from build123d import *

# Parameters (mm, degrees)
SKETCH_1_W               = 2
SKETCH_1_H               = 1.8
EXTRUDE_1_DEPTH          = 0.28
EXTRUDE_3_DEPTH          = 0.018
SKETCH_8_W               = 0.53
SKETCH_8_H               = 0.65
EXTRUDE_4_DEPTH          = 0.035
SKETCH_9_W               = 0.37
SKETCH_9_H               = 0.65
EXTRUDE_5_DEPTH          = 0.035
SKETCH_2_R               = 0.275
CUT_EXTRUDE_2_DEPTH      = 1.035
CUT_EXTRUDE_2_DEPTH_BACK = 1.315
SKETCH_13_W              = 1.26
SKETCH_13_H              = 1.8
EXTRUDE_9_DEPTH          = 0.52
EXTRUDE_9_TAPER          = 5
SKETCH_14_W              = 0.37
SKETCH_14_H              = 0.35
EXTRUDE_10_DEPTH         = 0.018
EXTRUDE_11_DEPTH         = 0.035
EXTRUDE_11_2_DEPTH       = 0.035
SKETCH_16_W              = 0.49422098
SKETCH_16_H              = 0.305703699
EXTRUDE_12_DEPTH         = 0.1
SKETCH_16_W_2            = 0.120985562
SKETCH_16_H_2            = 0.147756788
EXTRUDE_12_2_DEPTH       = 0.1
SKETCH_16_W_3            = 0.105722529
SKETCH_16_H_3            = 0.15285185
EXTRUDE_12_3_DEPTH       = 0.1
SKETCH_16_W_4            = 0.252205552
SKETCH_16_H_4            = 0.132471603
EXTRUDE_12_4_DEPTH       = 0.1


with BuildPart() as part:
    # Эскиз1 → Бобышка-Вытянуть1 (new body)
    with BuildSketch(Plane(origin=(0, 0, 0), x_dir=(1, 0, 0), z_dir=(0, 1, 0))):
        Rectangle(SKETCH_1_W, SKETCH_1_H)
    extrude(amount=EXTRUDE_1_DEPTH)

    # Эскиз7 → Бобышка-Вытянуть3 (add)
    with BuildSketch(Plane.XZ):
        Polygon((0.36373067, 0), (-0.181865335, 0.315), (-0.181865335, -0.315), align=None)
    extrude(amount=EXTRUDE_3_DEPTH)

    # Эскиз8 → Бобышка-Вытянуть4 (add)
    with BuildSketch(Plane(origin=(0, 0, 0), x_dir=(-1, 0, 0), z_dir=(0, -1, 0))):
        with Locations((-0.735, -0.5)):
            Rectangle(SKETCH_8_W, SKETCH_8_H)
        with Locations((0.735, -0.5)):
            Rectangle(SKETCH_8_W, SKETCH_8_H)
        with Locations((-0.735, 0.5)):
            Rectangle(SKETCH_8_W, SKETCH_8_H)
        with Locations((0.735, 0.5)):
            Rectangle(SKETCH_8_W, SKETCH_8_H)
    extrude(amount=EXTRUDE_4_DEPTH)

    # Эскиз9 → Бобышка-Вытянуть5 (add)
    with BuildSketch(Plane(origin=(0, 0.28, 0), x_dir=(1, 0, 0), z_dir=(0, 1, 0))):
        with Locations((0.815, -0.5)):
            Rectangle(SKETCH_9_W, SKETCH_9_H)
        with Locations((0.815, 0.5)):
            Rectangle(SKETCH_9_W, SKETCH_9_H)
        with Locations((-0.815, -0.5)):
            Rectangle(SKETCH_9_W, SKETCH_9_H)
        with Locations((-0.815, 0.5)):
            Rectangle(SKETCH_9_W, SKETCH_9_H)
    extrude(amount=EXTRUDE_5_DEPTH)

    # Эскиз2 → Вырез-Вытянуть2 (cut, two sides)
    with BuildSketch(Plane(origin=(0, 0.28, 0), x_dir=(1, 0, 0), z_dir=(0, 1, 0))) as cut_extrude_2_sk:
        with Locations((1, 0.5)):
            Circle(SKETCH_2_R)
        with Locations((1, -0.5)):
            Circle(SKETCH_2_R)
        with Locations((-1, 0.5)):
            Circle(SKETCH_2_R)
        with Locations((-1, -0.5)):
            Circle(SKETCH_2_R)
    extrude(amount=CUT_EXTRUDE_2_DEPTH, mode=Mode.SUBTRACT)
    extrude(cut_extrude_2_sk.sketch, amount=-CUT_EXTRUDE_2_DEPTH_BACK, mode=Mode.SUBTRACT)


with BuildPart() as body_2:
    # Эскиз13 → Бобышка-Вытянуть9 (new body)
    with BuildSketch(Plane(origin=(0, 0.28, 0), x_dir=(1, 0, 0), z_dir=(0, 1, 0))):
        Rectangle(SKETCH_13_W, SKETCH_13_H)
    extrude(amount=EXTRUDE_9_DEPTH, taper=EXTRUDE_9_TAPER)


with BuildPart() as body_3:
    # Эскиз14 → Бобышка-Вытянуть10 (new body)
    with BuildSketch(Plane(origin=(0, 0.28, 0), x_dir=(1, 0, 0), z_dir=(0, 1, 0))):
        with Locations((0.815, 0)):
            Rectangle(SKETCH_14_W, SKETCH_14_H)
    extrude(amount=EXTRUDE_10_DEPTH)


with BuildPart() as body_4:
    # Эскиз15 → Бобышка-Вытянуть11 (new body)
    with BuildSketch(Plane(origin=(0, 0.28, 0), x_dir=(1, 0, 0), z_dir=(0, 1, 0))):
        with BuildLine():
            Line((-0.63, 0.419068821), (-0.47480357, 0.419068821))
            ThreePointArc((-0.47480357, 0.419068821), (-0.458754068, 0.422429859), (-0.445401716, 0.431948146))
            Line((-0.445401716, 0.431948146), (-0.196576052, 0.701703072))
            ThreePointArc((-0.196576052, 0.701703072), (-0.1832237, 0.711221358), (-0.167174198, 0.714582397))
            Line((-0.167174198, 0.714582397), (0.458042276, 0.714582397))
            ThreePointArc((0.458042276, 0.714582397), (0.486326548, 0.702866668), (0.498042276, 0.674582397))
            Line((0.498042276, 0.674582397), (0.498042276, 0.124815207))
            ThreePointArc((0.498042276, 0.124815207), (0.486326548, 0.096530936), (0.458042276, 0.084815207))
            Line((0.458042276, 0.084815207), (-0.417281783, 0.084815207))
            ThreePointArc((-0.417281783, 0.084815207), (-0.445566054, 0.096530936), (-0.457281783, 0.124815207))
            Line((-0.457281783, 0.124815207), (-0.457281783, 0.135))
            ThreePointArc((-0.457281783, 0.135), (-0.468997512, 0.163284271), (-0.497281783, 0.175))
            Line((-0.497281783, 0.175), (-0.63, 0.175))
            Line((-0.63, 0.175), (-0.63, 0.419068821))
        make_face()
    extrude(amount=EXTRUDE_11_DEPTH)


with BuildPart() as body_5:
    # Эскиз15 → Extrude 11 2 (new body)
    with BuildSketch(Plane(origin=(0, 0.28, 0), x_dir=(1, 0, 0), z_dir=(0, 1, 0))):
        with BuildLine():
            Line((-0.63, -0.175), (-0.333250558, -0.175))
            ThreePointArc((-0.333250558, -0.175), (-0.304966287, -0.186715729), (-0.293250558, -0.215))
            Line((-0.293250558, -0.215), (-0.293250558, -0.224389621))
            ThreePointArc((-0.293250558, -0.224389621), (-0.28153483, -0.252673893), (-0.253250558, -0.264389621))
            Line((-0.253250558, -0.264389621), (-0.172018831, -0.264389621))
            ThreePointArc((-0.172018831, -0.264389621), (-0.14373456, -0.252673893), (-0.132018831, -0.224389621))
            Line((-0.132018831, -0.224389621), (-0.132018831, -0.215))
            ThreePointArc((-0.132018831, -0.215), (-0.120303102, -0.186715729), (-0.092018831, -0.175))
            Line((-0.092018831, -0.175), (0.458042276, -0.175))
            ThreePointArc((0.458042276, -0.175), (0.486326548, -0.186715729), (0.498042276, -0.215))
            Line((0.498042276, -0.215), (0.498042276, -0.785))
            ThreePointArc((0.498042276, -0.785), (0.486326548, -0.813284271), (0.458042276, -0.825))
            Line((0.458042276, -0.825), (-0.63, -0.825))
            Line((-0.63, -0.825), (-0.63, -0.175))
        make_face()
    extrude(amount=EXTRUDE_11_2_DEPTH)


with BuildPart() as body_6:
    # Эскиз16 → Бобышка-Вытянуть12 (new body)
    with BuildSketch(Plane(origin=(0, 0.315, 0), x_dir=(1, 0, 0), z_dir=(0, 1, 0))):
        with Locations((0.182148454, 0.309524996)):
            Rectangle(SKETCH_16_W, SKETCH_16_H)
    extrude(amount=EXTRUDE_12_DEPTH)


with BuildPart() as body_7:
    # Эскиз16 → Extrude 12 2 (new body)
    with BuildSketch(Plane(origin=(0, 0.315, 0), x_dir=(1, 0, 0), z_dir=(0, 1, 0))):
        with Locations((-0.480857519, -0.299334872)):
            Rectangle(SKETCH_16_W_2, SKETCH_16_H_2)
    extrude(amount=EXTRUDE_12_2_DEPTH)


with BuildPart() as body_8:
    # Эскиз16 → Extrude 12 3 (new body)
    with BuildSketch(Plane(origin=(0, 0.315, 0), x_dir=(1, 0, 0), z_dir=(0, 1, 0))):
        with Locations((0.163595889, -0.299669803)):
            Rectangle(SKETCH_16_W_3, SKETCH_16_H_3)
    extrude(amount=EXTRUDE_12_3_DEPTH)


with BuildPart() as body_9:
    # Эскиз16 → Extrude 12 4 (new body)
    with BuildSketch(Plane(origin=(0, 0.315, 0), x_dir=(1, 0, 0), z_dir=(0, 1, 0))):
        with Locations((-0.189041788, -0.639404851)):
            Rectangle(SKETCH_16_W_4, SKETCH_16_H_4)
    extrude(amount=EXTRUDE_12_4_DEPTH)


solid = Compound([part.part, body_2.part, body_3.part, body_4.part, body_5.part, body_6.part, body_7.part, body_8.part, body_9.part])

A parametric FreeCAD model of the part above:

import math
import FreeCAD as App
import Part
import Sketcher
from FreeCAD import Vector
Q = App.Units.Quantity


def add_polygon(sketch, points):
    """Adds a closed chain of lines whose ends are joined by coincident constraints."""
    first, n = sketch.GeometryCount, len(points)
    for a, b in zip(points, points[1:] + points[:1]):
        sketch.addGeometry(Part.LineSegment(App.Vector(*a, 0), App.Vector(*b, 0)), False)
    for i in range(n):
        sketch.addConstraint(Sketcher.Constraint("Coincident", first + i, 2, first + (i + 1) % n, 1))

doc = App.newDocument("Part")
params = doc.addObject("Spreadsheet::Sheet", "Params")
for row, (alias, value) in enumerate([
    ("sketch1_width", "2 mm"),
    ("sketch1_height", "1.8 mm"),
    ("pad1_length", "0.28 mm"),
    ("sketch2_height", "0.63 mm"),
    ("pad2_length", "0.018 mm"),
    ("sketch3_width", "0.53 mm"),
    ("sketch3_height", "0.65 mm"),
    ("pad3_length", "0.035 mm"),
    ("sketch4_width", "0.37 mm"),
    ("sketch4_height", "0.65 mm"),
    ("pad4_length", "0.035 mm"),
    ("sketch5_diameter", "0.55 mm"),
    ("sketch6_height", "1.8 mm"),
    ("sketch6_width", "1.26 mm"),
    ("pad5_length", "0.52 mm"),
    ("pad5_taper", "-5 deg"),
    ("sketch7_width", "0.37 mm"),
    ("sketch7_height", "0.35 mm"),
    ("pad6_length", "0.018 mm"),
    ("sketch8_radius", "0.04 mm"),
    ("pad7_length", "0.035 mm"),
    ("sketch9_radius", "0.04 mm"),
    ("sketch9_height", "0.65 mm"),
    ("pad8_length", "0.035 mm"),
    ("pad9_length", "0.1 mm"),
    ("pad10_length", "0.1 mm"),
    ("pad11_length", "0.1 mm"),
    ("pad12_length", "0.1 mm"),
], start=1):
    params.set(f"A{row}", alias)
    params.set(f"B{row}", "=" + value)
    params.setAlias(f"B{row}", alias)

body = doc.addObject("PartDesign::Body", "Body")

# Sketch on XZ plane
sketch1 = body.newObject("Sketcher::SketchObject", "Sketch")
sketch1.AttachmentSupport = (doc.getObject("XZ_Plane"), [""])
sketch1.MapMode = "FlatFace"
add_polygon(sketch1, [(-1, -0.9), (-1, 0.9), (1, 0.9), (1, -0.9)])  # lines 0-3
sketch1.addConstraint(Sketcher.Constraint("Vertical", 0))
sketch1.addConstraint(Sketcher.Constraint("Horizontal", 1))
sketch1.addConstraint(Sketcher.Constraint("Vertical", 2))
sketch1.addConstraint(Sketcher.Constraint("Horizontal", 3))
sketch1.addConstraint(Sketcher.Constraint("Symmetric", 0, 2, 2, 2, -1, 1))
sketch1.addConstraint(Sketcher.Constraint("DistanceX", 1, 1, 1, 2, Q("2 mm")))
sketch1.addConstraint(Sketcher.Constraint("DistanceY", 0, 1, 0, 2, Q("1.8 mm")))
sketch1.setExpression("Constraints[9]", "Params.sketch1_width")
sketch1.setExpression("Constraints[10]", "Params.sketch1_height")
pad1 = body.newObject("PartDesign::Pad", "Pad")
pad1.Profile = sketch1
pad1.setExpression("Length", "Params.pad1_length")
pad1.Reversed = True

# Sketch on XZ plane
sketch2 = body.newObject("Sketcher::SketchObject", "Sketch001")
sketch2.AttachmentSupport = (doc.getObject("XZ_Plane"), [""])
sketch2.MapMode = "FlatFace"
add_polygon(sketch2, [(0.363731, 0), (-0.181865, 0.315), (-0.181865, -0.315)])  # lines 0-2
sketch2.addConstraint(Sketcher.Constraint("Vertical", 1))
sketch2.addConstraint(Sketcher.Constraint("PointOnObject", 2, 2, -1))
sketch2.addConstraint(Sketcher.Constraint("Equal", 0, 2))
sketch2.addConstraint(Sketcher.Constraint("Angle", 0, Q("150 deg")))
sketch2.addConstraint(Sketcher.Constraint("DistanceY", 1, 2, 1, 1, Q("0.63 mm")))
sketch2.addConstraint(Sketcher.Constraint("DistanceX", -1, 1, 2, 2, Q("0.363731 mm")))
sketch2.setExpression("Constraints[7]", "Params.sketch2_height")
pad2 = body.newObject("PartDesign::Pad", "Pad001")
pad2.Profile = sketch2
pad2.setExpression("Length", "Params.pad2_length")

# Sketch on XZ plane
sketch3 = body.newObject("Sketcher::SketchObject", "Sketch002")
sketch3.AttachmentSupport = (doc.getObject("XZ_Plane"), [""])
sketch3.MapMode = "FlatFace"
add_polygon(sketch3, [(1, 0.175), (1, 0.825), (0.47, 0.825), (0.47, 0.175)])  # lines 0-3
add_polygon(sketch3, [(-0.47, 0.175), (-0.47, 0.825), (-1, 0.825), (-1, 0.175)])  # lines 4-7
add_polygon(sketch3, [(1, -0.825), (1, -0.175), (0.47, -0.175), (0.47, -0.825)])  # lines 8-11
add_polygon(sketch3, [(-0.47, -0.825), (-0.47, -0.175), (-1, -0.175), (-1, -0.825)])  # lines 12-15
sketch3.addConstraint(Sketcher.Constraint("Vertical", 0))
sketch3.addConstraint(Sketcher.Constraint("Horizontal", 1))
sketch3.addConstraint(Sketcher.Constraint("Vertical", 2))
sketch3.addConstraint(Sketcher.Constraint("Horizontal", 3))
sketch3.addConstraint(Sketcher.Constraint("Vertical", 4))
sketch3.addConstraint(Sketcher.Constraint("Horizontal", 5))
sketch3.addConstraint(Sketcher.Constraint("Vertical", 6))
sketch3.addConstraint(Sketcher.Constraint("Horizontal", 7))
sketch3.addConstraint(Sketcher.Constraint("Vertical", 8))
sketch3.addConstraint(Sketcher.Constraint("Horizontal", 9))
sketch3.addConstraint(Sketcher.Constraint("Vertical", 10))
sketch3.addConstraint(Sketcher.Constraint("Horizontal", 11))
sketch3.addConstraint(Sketcher.Constraint("Vertical", 12))
sketch3.addConstraint(Sketcher.Constraint("Horizontal", 13))
sketch3.addConstraint(Sketcher.Constraint("Vertical", 14))
sketch3.addConstraint(Sketcher.Constraint("Horizontal", 15))
sketch3.addConstraint(Sketcher.Constraint("Symmetric", 6, 2, 8, 2, -1, 1))
sketch3.addConstraint(Sketcher.Constraint("Symmetric", 4, 2, 10, 2, -1, 1))
sketch3.addConstraint(Sketcher.Constraint("Symmetric", 2, 2, 12, 2, -1, 1))
sketch3.addConstraint(Sketcher.Constraint("Symmetric", 0, 2, 14, 2, -1, 1))
sketch3.addConstraint(Sketcher.Constraint("Symmetric", 1, 2, 4, 2, -2))
sketch3.addConstraint(Sketcher.Constraint("Symmetric", 3, 2, 6, 2, -2))
sketch3.addConstraint(Sketcher.Constraint("DistanceX", -1, 1, 0, 2, Q("1 mm")))
sketch3.addConstraint(Sketcher.Constraint("DistanceY", 8, 2, 0, 2, Q("1 mm")))
sketch3.addConstraint(Sketcher.Constraint("DistanceX", 1, 2, 1, 1, Q("0.53 mm")))
sketch3.addConstraint(Sketcher.Constraint("DistanceY", 0, 1, 0, 2, Q("0.65 mm")))
sketch3.setExpression("Constraints[40]", "Params.sketch3_width")
sketch3.setExpression("Constraints[41]", "Params.sketch3_height")
pad3 = body.newObject("PartDesign::Pad", "Pad002")
pad3.Profile = sketch3
pad3.setExpression("Length", "Params.pad3_length")

# Sketch on XZ plane
sketch4 = body.newObject("Sketcher::SketchObject", "Sketch003")
sketch4.AttachmentSupport = (doc.getObject("XZ_Plane"), [""])
sketch4.MapMode = "FlatFace"
sketch4.AttachmentOffset = App.Placement(Vector(0, 0, -0.28), App.Rotation())
add_polygon(sketch4, [(0.63, 0.175), (0.63, 0.825), (1, 0.825), (1, 0.175)])  # lines 0-3
add_polygon(sketch4, [(0.63, -0.825), (0.63, -0.175), (1, -0.175), (1, -0.825)])  # lines 4-7
add_polygon(sketch4, [(-1, 0.175), (-1, 0.825), (-0.63, 0.825), (-0.63, 0.175)])  # lines 8-11
add_polygon(sketch4, [(-1, -0.825), (-1, -0.175), (-0.63, -0.175), (-0.63, -0.825)])  # lines 12-15
sketch4.addConstraint(Sketcher.Constraint("Vertical", 0))
sketch4.addConstraint(Sketcher.Constraint("Horizontal", 1))
sketch4.addConstraint(Sketcher.Constraint("Vertical", 2))
sketch4.addConstraint(Sketcher.Constraint("Horizontal", 3))
sketch4.addConstraint(Sketcher.Constraint("Vertical", 4))
sketch4.addConstraint(Sketcher.Constraint("Horizontal", 5))
sketch4.addConstraint(Sketcher.Constraint("Vertical", 6))
sketch4.addConstraint(Sketcher.Constraint("Horizontal", 7))
sketch4.addConstraint(Sketcher.Constraint("Vertical", 8))
sketch4.addConstraint(Sketcher.Constraint("Horizontal", 9))
sketch4.addConstraint(Sketcher.Constraint("Vertical", 10))
sketch4.addConstraint(Sketcher.Constraint("Horizontal", 11))
sketch4.addConstraint(Sketcher.Constraint("Vertical", 12))
sketch4.addConstraint(Sketcher.Constraint("Horizontal", 13))
sketch4.addConstraint(Sketcher.Constraint("Vertical", 14))
sketch4.addConstraint(Sketcher.Constraint("Horizontal", 15))
sketch4.addConstraint(Sketcher.Constraint("Symmetric", 6, 2, 8, 2, -1, 1))
sketch4.addConstraint(Sketcher.Constraint("Symmetric", 4, 2, 10, 2, -1, 1))
sketch4.addConstraint(Sketcher.Constraint("Symmetric", 2, 2, 12, 2, -1, 1))
sketch4.addConstraint(Sketcher.Constraint("Symmetric", 0, 2, 14, 2, -1, 1))
sketch4.addConstraint(Sketcher.Constraint("Symmetric", 1, 2, 8, 2, -2))
sketch4.addConstraint(Sketcher.Constraint("Symmetric", 3, 2, 10, 2, -2))
sketch4.addConstraint(Sketcher.Constraint("DistanceX", -1, 1, 1, 2, Q("1 mm")))
sketch4.addConstraint(Sketcher.Constraint("DistanceY", 4, 2, 0, 2, Q("1 mm")))
sketch4.addConstraint(Sketcher.Constraint("DistanceX", 1, 1, 1, 2, Q("0.37 mm")))
sketch4.addConstraint(Sketcher.Constraint("DistanceY", 0, 1, 0, 2, Q("0.65 mm")))
sketch4.setExpression("Constraints[40]", "Params.sketch4_width")
sketch4.setExpression("Constraints[41]", "Params.sketch4_height")
pad4 = body.newObject("PartDesign::Pad", "Pad003")
pad4.Profile = sketch4
pad4.setExpression("Length", "Params.pad4_length")
pad4.Reversed = True

# Sketch on XZ plane
sketch5 = body.newObject("Sketcher::SketchObject", "Sketch004")
sketch5.AttachmentSupport = (doc.getObject("XZ_Plane"), [""])
sketch5.MapMode = "FlatFace"
sketch5.AttachmentOffset = App.Placement(Vector(0, 0, -0.28), App.Rotation())
sketch5.addGeometry(Part.Circle(Vector(1, -0.5, 0), Vector(0, 0, 1), 0.275), False)
sketch5.addGeometry(Part.Circle(Vector(1, 0.5, 0), Vector(0, 0, 1), 0.275), False)
sketch5.addGeometry(Part.Circle(Vector(-1, -0.5, 0), Vector(0, 0, 1), 0.275), False)
sketch5.addGeometry(Part.Circle(Vector(-1, 0.5, 0), Vector(0, 0, 1), 0.275), False)
sketch5.addConstraint(Sketcher.Constraint("Equal", 0, 1))
sketch5.addConstraint(Sketcher.Constraint("Equal", 1, 2))
sketch5.addConstraint(Sketcher.Constraint("Equal", 2, 3))
sketch5.addConstraint(Sketcher.Constraint("Symmetric", 1, 3, 2, 3, -1, 1))
sketch5.addConstraint(Sketcher.Constraint("Symmetric", 0, 3, 3, 3, -1, 1))
sketch5.addConstraint(Sketcher.Constraint("Symmetric", 0, 3, 2, 3, -2))
sketch5.addConstraint(Sketcher.Constraint("Diameter", 0, Q("0.55 mm")))
sketch5.addConstraint(Sketcher.Constraint("DistanceX", -1, 1, 0, 3, Q("1 mm")))
sketch5.addConstraint(Sketcher.Constraint("DistanceY", 0, 3, 1, 3, Q("1 mm")))
sketch5.setExpression("Constraints[6]", "Params.sketch5_diameter")
pocket1 = body.newObject("PartDesign::Pocket", "Pocket")
pocket1.Profile = sketch5
pocket1.Type = "ThroughAll"
pocket1.Midplane = True
body2 = doc.addObject("PartDesign::Body", "Body001")

# Sketch on XZ plane
sketch6 = body2.newObject("Sketcher::SketchObject", "Sketch005")
sketch6.AttachmentSupport = (doc.getObject("XZ_Plane001"), [""])
sketch6.MapMode = "FlatFace"
sketch6.AttachmentOffset = App.Placement(Vector(0, 0, -0.28), App.Rotation())
add_polygon(sketch6, [(-0.63, -0.9), (-0.63, 0.9), (0.63, 0.9), (0.63, -0.9)])  # lines 0-3
sketch6.addConstraint(Sketcher.Constraint("Vertical", 0))
sketch6.addConstraint(Sketcher.Constraint("Horizontal", 1))
sketch6.addConstraint(Sketcher.Constraint("Vertical", 2))
sketch6.addConstraint(Sketcher.Constraint("Horizontal", 3))
sketch6.addConstraint(Sketcher.Constraint("Symmetric", 0, 2, 2, 2, -1, 1))
sketch6.addConstraint(Sketcher.Constraint("DistanceY", 0, 1, 0, 2, Q("1.8 mm")))
sketch6.addConstraint(Sketcher.Constraint("DistanceX", 1, 1, 1, 2, Q("1.26 mm")))
sketch6.setExpression("Constraints[9]", "Params.sketch6_height")
sketch6.setExpression("Constraints[10]", "Params.sketch6_width")
pad5 = body2.newObject("PartDesign::Pad", "Pad004")
pad5.Profile = sketch6
pad5.setExpression("Length", "Params.pad5_length")
pad5.Reversed = True
pad5.setExpression("TaperAngle", "Params.pad5_taper")
body3 = doc.addObject("PartDesign::Body", "Body002")

# Sketch on XZ plane
sketch7 = body3.newObject("Sketcher::SketchObject", "Sketch006")
sketch7.AttachmentSupport = (doc.getObject("XZ_Plane002"), [""])
sketch7.MapMode = "FlatFace"
sketch7.AttachmentOffset = App.Placement(Vector(0, 0, -0.28), App.Rotation())
add_polygon(sketch7, [(0.63, -0.175), (0.63, 0.175), (1, 0.175), (1, -0.175)])  # lines 0-3
sketch7.addConstraint(Sketcher.Constraint("Vertical", 0))
sketch7.addConstraint(Sketcher.Constraint("Horizontal", 1))
sketch7.addConstraint(Sketcher.Constraint("Vertical", 2))
sketch7.addConstraint(Sketcher.Constraint("Horizontal", 3))
sketch7.addConstraint(Sketcher.Constraint("DistanceX", -1, 1, 1, 2, Q("1 mm")))
sketch7.addConstraint(Sketcher.Constraint("DistanceX", 1, 1, 1, 2, Q("0.37 mm")))
sketch7.addConstraint(Sketcher.Constraint("DistanceY", 0, 1, 0, 2, Q("0.35 mm")))
sketch7.addConstraint(Sketcher.Constraint("DistanceY", -1, 1, 0, 2, Q("0.175 mm")))
sketch7.setExpression("Constraints[9]", "Params.sketch7_width")
sketch7.setExpression("Constraints[10]", "Params.sketch7_height")
pad6 = body3.newObject("PartDesign::Pad", "Pad005")
pad6.Profile = sketch7
pad6.setExpression("Length", "Params.pad6_length")
pad6.Reversed = True
body4 = doc.addObject("PartDesign::Body", "Body003")

# Sketch on XZ plane
sketch8 = body4.newObject("Sketcher::SketchObject", "Sketch007")
sketch8.AttachmentSupport = (doc.getObject("XZ_Plane003"), [""])
sketch8.MapMode = "FlatFace"
sketch8.AttachmentOffset = App.Placement(Vector(0, 0, -0.28), App.Rotation())
sketch8.addGeometry(Part.LineSegment(Vector(-0.474804, -0.419069, 0), Vector(-0.63, -0.419069, 0)), False)
sketch8.addGeometry(Part.LineSegment(Vector(-0.63, -0.419069, 0), Vector(-0.63, -0.175, 0)), False)
sketch8.addGeometry(Part.LineSegment(Vector(-0.63, -0.175, 0), Vector(-0.497282, -0.175, 0)), False)
sketch8.addGeometry(Part.ArcOfCircle(Part.Circle(Vector(-0.497282, -0.135, 0), Vector(0, 0, 1), 0.04), math.radians(-89.999999), math.radians(-0.000001)), False)
sketch8.addGeometry(Part.LineSegment(Vector(-0.457282, -0.135, 0), Vector(-0.457282, -0.124815, 0)), False)
sketch8.addGeometry(Part.ArcOfCircle(Part.Circle(Vector(-0.417282, -0.124815, 0), Vector(0, 0, 1), 0.04), math.radians(90.000001), math.radians(179.999999)), False)
sketch8.addGeometry(Part.LineSegment(Vector(-0.417282, -0.084815, 0), Vector(0.458042, -0.084815, 0)), False)
sketch8.addGeometry(Part.ArcOfCircle(Part.Circle(Vector(0.458042, -0.124815, 0), Vector(0, 0, 1), 0.04), math.radians(-0.000001), math.radians(90.000001)), False)
sketch8.addGeometry(Part.LineSegment(Vector(0.498042, -0.124815, 0), Vector(0.498042, -0.674582, 0)), False)
sketch8.addGeometry(Part.ArcOfCircle(Part.Circle(Vector(0.458042, -0.674582, 0), Vector(0, 0, 1), 0.04), math.radians(-90.000001), math.radians(0.000001)), False)
sketch8.addGeometry(Part.LineSegment(Vector(0.458042, -0.714582, 0), Vector(-0.167174, -0.714582, 0)), False)
sketch8.addGeometry(Part.ArcOfCircle(Part.Circle(Vector(-0.167174, -0.674582, 0), Vector(0, 0, 1), 0.04), math.radians(-137.311129), math.radians(-90.000003)), False)
sketch8.addGeometry(Part.LineSegment(Vector(-0.196576, -0.701703, 0), Vector(-0.445402, -0.431948, 0)), False)
sketch8.addGeometry(Part.ArcOfCircle(Part.Circle(Vector(-0.474804, -0.459069, 0), Vector(0, 0, 1), 0.04), math.radians(42.688865), math.radians(90.000004)), False)
sketch8.addConstraint(Sketcher.Constraint("Coincident", 0, 2, 1, 1))
sketch8.addConstraint(Sketcher.Constraint("Coincident", 1, 2, 2, 1))
sketch8.addConstraint(Sketcher.Constraint("Tangent", 2, 2, 3, 1))
sketch8.addConstraint(Sketcher.Constraint("Tangent", 3, 2, 4, 1))
sketch8.addConstraint(Sketcher.Constraint("Tangent", 4, 2, 5, 2))
sketch8.addConstraint(Sketcher.Constraint("Tangent", 5, 1, 6, 1))
sketch8.addConstraint(Sketcher.Constraint("Tangent", 6, 2, 7, 2))
sketch8.addConstraint(Sketcher.Constraint("Tangent", 7, 1, 8, 1))
sketch8.addConstraint(Sketcher.Constraint("Tangent", 8, 2, 9, 2))
sketch8.addConstraint(Sketcher.Constraint("Tangent", 9, 1, 10, 1))
sketch8.addConstraint(Sketcher.Constraint("Tangent", 10, 2, 11, 2))
sketch8.addConstraint(Sketcher.Constraint("Tangent", 11, 1, 12, 1))
sketch8.addConstraint(Sketcher.Constraint("Tangent", 12, 2, 13, 1))
sketch8.addConstraint(Sketcher.Constraint("Tangent", 13, 2, 0, 1))
sketch8.addConstraint(Sketcher.Constraint("Horizontal", 0))
sketch8.addConstraint(Sketcher.Constraint("Vertical", 1))
sketch8.addConstraint(Sketcher.Constraint("Horizontal", 2))
sketch8.addConstraint(Sketcher.Constraint("Vertical", 4))
sketch8.addConstraint(Sketcher.Constraint("Horizontal", 6))
sketch8.addConstraint(Sketcher.Constraint("Vertical", 8))
sketch8.addConstraint(Sketcher.Constraint("Horizontal", 10))
sketch8.addConstraint(Sketcher.Constraint("Equal", 3, 5))
sketch8.addConstraint(Sketcher.Constraint("Equal", 5, 7))
sketch8.addConstraint(Sketcher.Constraint("Equal", 7, 9))
sketch8.addConstraint(Sketcher.Constraint("Equal", 9, 11))
sketch8.addConstraint(Sketcher.Constraint("Equal", 11, 13))
sketch8.addConstraint(Sketcher.Constraint("Radius", 3, Q("0.04 mm")))
sketch8.addConstraint(Sketcher.Constraint("DistanceX", 0, 2, -1, 1, Q("0.63 mm")))
sketch8.addConstraint(Sketcher.Constraint("DistanceY", 3, 3, -1, 1, Q("0.135 mm")))
sketch8.addConstraint(Sketcher.Constraint("DistanceX", 2, 1, 2, 2, Q("0.132718 mm")))
sketch8.addConstraint(Sketcher.Constraint("DistanceY", 1, 1, 1, 2, Q("0.244069 mm")))
sketch8.addConstraint(Sketcher.Constraint("DistanceX", 12, 2, -1, 1, Q("0.445402 mm")))
sketch8.addConstraint(Sketcher.Constraint("DistanceX", 11, 1, 10, 2, Q("0.029402 mm")))
sketch8.addConstraint(Sketcher.Constraint("Distance", 12, Q("0.36699 mm")))
sketch8.addConstraint(Sketcher.Constraint("DistanceX", 6, 1, 6, 2, Q("0.875324 mm")))
sketch8.addConstraint(Sketcher.Constraint("DistanceY", 4, 1, 4, 2, Q("0.010185 mm")))
sketch8.setExpression("Constraints[26]", "Params.sketch8_radius")
pad7 = body4.newObject("PartDesign::Pad", "Pad006")
pad7.Profile = sketch8
pad7.setExpression("Length", "Params.pad7_length")
pad7.Reversed = True
body5 = doc.addObject("PartDesign::Body", "Body004")

# Sketch on XZ plane
sketch9 = body5.newObject("Sketcher::SketchObject", "Sketch008")
sketch9.AttachmentSupport = (doc.getObject("XZ_Plane004"), [""])
sketch9.MapMode = "FlatFace"
sketch9.AttachmentOffset = App.Placement(Vector(0, 0, -0.28), App.Rotation())
sketch9.addGeometry(Part.LineSegment(Vector(-0.333251, 0.175, 0), Vector(-0.63, 0.175, 0)), False)
sketch9.addGeometry(Part.LineSegment(Vector(-0.63, 0.175, 0), Vector(-0.63, 0.825, 0)), False)
sketch9.addGeometry(Part.LineSegment(Vector(-0.63, 0.825, 0), Vector(0.458042, 0.825, 0)), False)
sketch9.addGeometry(Part.ArcOfCircle(Part.Circle(Vector(0.458042, 0.785, 0), Vector(0, 0, 1), 0.04), math.radians(-0.000001), math.radians(90.000001)), False)
sketch9.addGeometry(Part.LineSegment(Vector(0.498042, 0.785, 0), Vector(0.498042, 0.215, 0)), False)
sketch9.addGeometry(Part.ArcOfCircle(Part.Circle(Vector(0.458042, 0.215, 0), Vector(0, 0, 1), 0.04), math.radians(-90.000001), math.radians(0.000001)), False)
sketch9.addGeometry(Part.LineSegment(Vector(0.458042, 0.175, 0), Vector(-0.092019, 0.175, 0)), False)
sketch9.addGeometry(Part.ArcOfCircle(Part.Circle(Vector(-0.092019, 0.215, 0), Vector(0, 0, 1), 0.04), math.radians(-179.999999), math.radians(-90.000001)), False)
sketch9.addGeometry(Part.LineSegment(Vector(-0.132019, 0.215, 0), Vector(-0.132019, 0.22439, 0)), False)
sketch9.addGeometry(Part.ArcOfCircle(Part.Circle(Vector(-0.172019, 0.22439, 0), Vector(0, 0, 1), 0.04), math.radians(-0.000001), math.radians(90.000001)), False)
sketch9.addGeometry(Part.LineSegment(Vector(-0.172019, 0.26439, 0), Vector(-0.253251, 0.26439, 0)), False)
sketch9.addGeometry(Part.ArcOfCircle(Part.Circle(Vector(-0.253251, 0.22439, 0), Vector(0, 0, 1), 0.04), math.radians(89.999996), math.radians(180.000004)), False)
sketch9.addGeometry(Part.LineSegment(Vector(-0.293251, 0.22439, 0), Vector(-0.293251, 0.215, 0)), False)
sketch9.addGeometry(Part.ArcOfCircle(Part.Circle(Vector(-0.333251, 0.215, 0), Vector(0, 0, 1), 0.04), math.radians(-89.999999), math.radians(-0.000001)), False)
sketch9.addConstraint(Sketcher.Constraint("Coincident", 0, 2, 1, 1))
sketch9.addConstraint(Sketcher.Constraint("Coincident", 1, 2, 2, 1))
sketch9.addConstraint(Sketcher.Constraint("Tangent", 2, 2, 3, 2))
sketch9.addConstraint(Sketcher.Constraint("Tangent", 3, 1, 4, 1))
sketch9.addConstraint(Sketcher.Constraint("Tangent", 4, 2, 5, 2))
sketch9.addConstraint(Sketcher.Constraint("Tangent", 5, 1, 6, 1))
sketch9.addConstraint(Sketcher.Constraint("Tangent", 6, 2, 7, 2))
sketch9.addConstraint(Sketcher.Constraint("Tangent", 7, 1, 8, 1))
sketch9.addConstraint(Sketcher.Constraint("Tangent", 8, 2, 9, 1))
sketch9.addConstraint(Sketcher.Constraint("Tangent", 9, 2, 10, 1))
sketch9.addConstraint(Sketcher.Constraint("Tangent", 10, 2, 11, 1))
sketch9.addConstraint(Sketcher.Constraint("Tangent", 11, 2, 12, 1))
sketch9.addConstraint(Sketcher.Constraint("Tangent", 12, 2, 13, 2))
sketch9.addConstraint(Sketcher.Constraint("Tangent", 13, 1, 0, 1))
sketch9.addConstraint(Sketcher.Constraint("Horizontal", 0))
sketch9.addConstraint(Sketcher.Constraint("Vertical", 1))
sketch9.addConstraint(Sketcher.Constraint("Horizontal", 2))
sketch9.addConstraint(Sketcher.Constraint("Vertical", 4))
sketch9.addConstraint(Sketcher.Constraint("Horizontal", 6))
sketch9.addConstraint(Sketcher.Constraint("Vertical", 8))
sketch9.addConstraint(Sketcher.Constraint("Horizontal", 10))
sketch9.addConstraint(Sketcher.Constraint("Vertical", 12))
sketch9.addConstraint(Sketcher.Constraint("Equal", 3, 5))
sketch9.addConstraint(Sketcher.Constraint("Equal", 5, 7))
sketch9.addConstraint(Sketcher.Constraint("Equal", 7, 9))
sketch9.addConstraint(Sketcher.Constraint("Equal", 9, 11))
sketch9.addConstraint(Sketcher.Constraint("Equal", 11, 13))
sketch9.addConstraint(Sketcher.Constraint("Horizontal", 7, 3, 13, 3))
sketch9.addConstraint(Sketcher.Constraint("Radius", 3, Q("0.04 mm")))
sketch9.addConstraint(Sketcher.Constraint("DistanceY", 1, 1, 1, 2, Q("0.65 mm")))
sketch9.addConstraint(Sketcher.Constraint("DistanceX", 0, 2, -1, 1, Q("0.63 mm")))
sketch9.addConstraint(Sketcher.Constraint("DistanceY", -1, 1, 3, 3, Q("0.785 mm")))
sketch9.addConstraint(Sketcher.Constraint("DistanceX", 0, 2, 0, 1, Q("0.296749 mm")))
sketch9.addConstraint(Sketcher.Constraint("DistanceX", 6, 2, 6, 1, Q("0.550061 mm")))
sketch9.addConstraint(Sketcher.Constraint("DistanceX", 10, 2, 10, 1, Q("0.081232 mm")))
sketch9.addConstraint(Sketcher.Constraint("DistanceY", 8, 1, 8, 2, Q("0.00939 mm")))
sketch9.setExpression("Constraints[28]", "Params.sketch9_radius")
sketch9.setExpression("Constraints[29]", "Params.sketch9_height")
pad8 = body5.newObject("PartDesign::Pad", "Pad007")
pad8.Profile = sketch9
pad8.setExpression("Length", "Params.pad8_length")
pad8.Reversed = True
body6 = doc.addObject("PartDesign::Body", "Body005")

# Sketch on XZ plane
sketch10 = body6.newObject("Sketcher::SketchObject", "Sketch009")
sketch10.AttachmentSupport = (doc.getObject("XZ_Plane005"), [""])
sketch10.MapMode = "FlatFace"
sketch10.AttachmentOffset = App.Placement(Vector(0, 0, -0.315), App.Rotation())
add_polygon(sketch10, [(-0.064962, -0.462377), (-0.064962, -0.156673), (0.429259, -0.156673), (0.429259, -0.462377)])  # lines 0-3
sketch10.addConstraint(Sketcher.Constraint("Vertical", 0))
sketch10.addConstraint(Sketcher.Constraint("Horizontal", 1))
sketch10.addConstraint(Sketcher.Constraint("Vertical", 2))
sketch10.addConstraint(Sketcher.Constraint("Horizontal", 3))
sketch10.addConstraint(Sketcher.Constraint("DistanceX", 1, 1, 1, 2, Q("0.494221 mm")))
sketch10.addConstraint(Sketcher.Constraint("DistanceY", 0, 1, 0, 2, Q("0.305704 mm")))
sketch10.addConstraint(Sketcher.Constraint("DistanceX", -1, 1, 1, 2, Q("0.429259 mm")))
sketch10.addConstraint(Sketcher.Constraint("DistanceY", 0, 2, -1, 1, Q("0.156673 mm")))
pad9 = body6.newObject("PartDesign::Pad", "Pad008")
pad9.Profile = sketch10
pad9.setExpression("Length", "Params.pad9_length")
pad9.Reversed = True
body7 = doc.addObject("PartDesign::Body", "Body006")

# Sketch on XZ plane
sketch11 = body7.newObject("Sketcher::SketchObject", "Sketch010")
sketch11.AttachmentSupport = (doc.getObject("XZ_Plane006"), [""])
sketch11.MapMode = "FlatFace"
sketch11.AttachmentOffset = App.Placement(Vector(0, 0, -0.315), App.Rotation())
add_polygon(sketch11, [(-0.54135, 0.225456), (-0.54135, 0.373213), (-0.420365, 0.373213), (-0.420365, 0.225456)])  # lines 0-3
sketch11.addConstraint(Sketcher.Constraint("Vertical", 0))
sketch11.addConstraint(Sketcher.Constraint("Horizontal", 1))
sketch11.addConstraint(Sketcher.Constraint("Vertical", 2))
sketch11.addConstraint(Sketcher.Constraint("Horizontal", 3))
sketch11.addConstraint(Sketcher.Constraint("DistanceX", 1, 1, 1, 2, Q("0.120986 mm")))
sketch11.addConstraint(Sketcher.Constraint("DistanceY", 0, 1, 0, 2, Q("0.147757 mm")))
sketch11.addConstraint(Sketcher.Constraint("DistanceX", 0, 2, -1, 1, Q("0.54135 mm")))
sketch11.addConstraint(Sketcher.Constraint("DistanceY", -1, 1, 0, 2, Q("0.373213 mm")))
pad10 = body7.newObject("PartDesign::Pad", "Pad009")
pad10.Profile = sketch11
pad10.setExpression("Length", "Params.pad10_length")
pad10.Reversed = True
body8 = doc.addObject("PartDesign::Body", "Body007")

# Sketch on XZ plane
sketch12 = body8.newObject("Sketcher::SketchObject", "Sketch011")
sketch12.AttachmentSupport = (doc.getObject("XZ_Plane007"), [""])
sketch12.MapMode = "FlatFace"
sketch12.AttachmentOffset = App.Placement(Vector(0, 0, -0.315), App.Rotation())
add_polygon(sketch12, [(0.110735, 0.223244), (0.110735, 0.376096), (0.216457, 0.376096), (0.216457, 0.223244)])  # lines 0-3
sketch12.addConstraint(Sketcher.Constraint("Vertical", 0))
sketch12.addConstraint(Sketcher.Constraint("Horizontal", 1))
sketch12.addConstraint(Sketcher.Constraint("Vertical", 2))
sketch12.addConstraint(Sketcher.Constraint("Horizontal", 3))
sketch12.addConstraint(Sketcher.Constraint("DistanceY", 0, 1, 0, 2, Q("0.152852 mm")))
sketch12.addConstraint(Sketcher.Constraint("DistanceX", 1, 1, 1, 2, Q("0.105723 mm")))
sketch12.addConstraint(Sketcher.Constraint("DistanceX", -1, 1, 0, 2, Q("0.110735 mm")))
sketch12.addConstraint(Sketcher.Constraint("DistanceY", -1, 1, 0, 2, Q("0.376096 mm")))
pad11 = body8.newObject("PartDesign::Pad", "Pad010")
pad11.Profile = sketch12
pad11.setExpression("Length", "Params.pad11_length")
pad11.Reversed = True
body9 = doc.addObject("PartDesign::Body", "Body008")

# Sketch on XZ plane
sketch13 = body9.newObject("Sketcher::SketchObject", "Sketch012")
sketch13.AttachmentSupport = (doc.getObject("XZ_Plane008"), [""])
sketch13.MapMode = "FlatFace"
sketch13.AttachmentOffset = App.Placement(Vector(0, 0, -0.315), App.Rotation())
add_polygon(sketch13, [(-0.315145, 0.573169), (-0.315145, 0.705641), (-0.062939, 0.705641), (-0.062939, 0.573169)])  # lines 0-3
sketch13.addConstraint(Sketcher.Constraint("Vertical", 0))
sketch13.addConstraint(Sketcher.Constraint("Horizontal", 1))
sketch13.addConstraint(Sketcher.Constraint("Vertical", 2))
sketch13.addConstraint(Sketcher.Constraint("Horizontal", 3))
sketch13.addConstraint(Sketcher.Constraint("DistanceY", 0, 1, 0, 2, Q("0.132472 mm")))
sketch13.addConstraint(Sketcher.Constraint("DistanceX", 1, 1, 1, 2, Q("0.252206 mm")))
sketch13.addConstraint(Sketcher.Constraint("DistanceY", -1, 1, 0, 2, Q("0.705641 mm")))
sketch13.addConstraint(Sketcher.Constraint("DistanceX", 1, 2, -1, 1, Q("0.062939 mm")))
pad12 = body9.newObject("PartDesign::Pad", "Pad011")
pad12.Profile = sketch13
pad12.setExpression("Length", "Params.pad12_length")
pad12.Reversed = True

doc.recompute()
